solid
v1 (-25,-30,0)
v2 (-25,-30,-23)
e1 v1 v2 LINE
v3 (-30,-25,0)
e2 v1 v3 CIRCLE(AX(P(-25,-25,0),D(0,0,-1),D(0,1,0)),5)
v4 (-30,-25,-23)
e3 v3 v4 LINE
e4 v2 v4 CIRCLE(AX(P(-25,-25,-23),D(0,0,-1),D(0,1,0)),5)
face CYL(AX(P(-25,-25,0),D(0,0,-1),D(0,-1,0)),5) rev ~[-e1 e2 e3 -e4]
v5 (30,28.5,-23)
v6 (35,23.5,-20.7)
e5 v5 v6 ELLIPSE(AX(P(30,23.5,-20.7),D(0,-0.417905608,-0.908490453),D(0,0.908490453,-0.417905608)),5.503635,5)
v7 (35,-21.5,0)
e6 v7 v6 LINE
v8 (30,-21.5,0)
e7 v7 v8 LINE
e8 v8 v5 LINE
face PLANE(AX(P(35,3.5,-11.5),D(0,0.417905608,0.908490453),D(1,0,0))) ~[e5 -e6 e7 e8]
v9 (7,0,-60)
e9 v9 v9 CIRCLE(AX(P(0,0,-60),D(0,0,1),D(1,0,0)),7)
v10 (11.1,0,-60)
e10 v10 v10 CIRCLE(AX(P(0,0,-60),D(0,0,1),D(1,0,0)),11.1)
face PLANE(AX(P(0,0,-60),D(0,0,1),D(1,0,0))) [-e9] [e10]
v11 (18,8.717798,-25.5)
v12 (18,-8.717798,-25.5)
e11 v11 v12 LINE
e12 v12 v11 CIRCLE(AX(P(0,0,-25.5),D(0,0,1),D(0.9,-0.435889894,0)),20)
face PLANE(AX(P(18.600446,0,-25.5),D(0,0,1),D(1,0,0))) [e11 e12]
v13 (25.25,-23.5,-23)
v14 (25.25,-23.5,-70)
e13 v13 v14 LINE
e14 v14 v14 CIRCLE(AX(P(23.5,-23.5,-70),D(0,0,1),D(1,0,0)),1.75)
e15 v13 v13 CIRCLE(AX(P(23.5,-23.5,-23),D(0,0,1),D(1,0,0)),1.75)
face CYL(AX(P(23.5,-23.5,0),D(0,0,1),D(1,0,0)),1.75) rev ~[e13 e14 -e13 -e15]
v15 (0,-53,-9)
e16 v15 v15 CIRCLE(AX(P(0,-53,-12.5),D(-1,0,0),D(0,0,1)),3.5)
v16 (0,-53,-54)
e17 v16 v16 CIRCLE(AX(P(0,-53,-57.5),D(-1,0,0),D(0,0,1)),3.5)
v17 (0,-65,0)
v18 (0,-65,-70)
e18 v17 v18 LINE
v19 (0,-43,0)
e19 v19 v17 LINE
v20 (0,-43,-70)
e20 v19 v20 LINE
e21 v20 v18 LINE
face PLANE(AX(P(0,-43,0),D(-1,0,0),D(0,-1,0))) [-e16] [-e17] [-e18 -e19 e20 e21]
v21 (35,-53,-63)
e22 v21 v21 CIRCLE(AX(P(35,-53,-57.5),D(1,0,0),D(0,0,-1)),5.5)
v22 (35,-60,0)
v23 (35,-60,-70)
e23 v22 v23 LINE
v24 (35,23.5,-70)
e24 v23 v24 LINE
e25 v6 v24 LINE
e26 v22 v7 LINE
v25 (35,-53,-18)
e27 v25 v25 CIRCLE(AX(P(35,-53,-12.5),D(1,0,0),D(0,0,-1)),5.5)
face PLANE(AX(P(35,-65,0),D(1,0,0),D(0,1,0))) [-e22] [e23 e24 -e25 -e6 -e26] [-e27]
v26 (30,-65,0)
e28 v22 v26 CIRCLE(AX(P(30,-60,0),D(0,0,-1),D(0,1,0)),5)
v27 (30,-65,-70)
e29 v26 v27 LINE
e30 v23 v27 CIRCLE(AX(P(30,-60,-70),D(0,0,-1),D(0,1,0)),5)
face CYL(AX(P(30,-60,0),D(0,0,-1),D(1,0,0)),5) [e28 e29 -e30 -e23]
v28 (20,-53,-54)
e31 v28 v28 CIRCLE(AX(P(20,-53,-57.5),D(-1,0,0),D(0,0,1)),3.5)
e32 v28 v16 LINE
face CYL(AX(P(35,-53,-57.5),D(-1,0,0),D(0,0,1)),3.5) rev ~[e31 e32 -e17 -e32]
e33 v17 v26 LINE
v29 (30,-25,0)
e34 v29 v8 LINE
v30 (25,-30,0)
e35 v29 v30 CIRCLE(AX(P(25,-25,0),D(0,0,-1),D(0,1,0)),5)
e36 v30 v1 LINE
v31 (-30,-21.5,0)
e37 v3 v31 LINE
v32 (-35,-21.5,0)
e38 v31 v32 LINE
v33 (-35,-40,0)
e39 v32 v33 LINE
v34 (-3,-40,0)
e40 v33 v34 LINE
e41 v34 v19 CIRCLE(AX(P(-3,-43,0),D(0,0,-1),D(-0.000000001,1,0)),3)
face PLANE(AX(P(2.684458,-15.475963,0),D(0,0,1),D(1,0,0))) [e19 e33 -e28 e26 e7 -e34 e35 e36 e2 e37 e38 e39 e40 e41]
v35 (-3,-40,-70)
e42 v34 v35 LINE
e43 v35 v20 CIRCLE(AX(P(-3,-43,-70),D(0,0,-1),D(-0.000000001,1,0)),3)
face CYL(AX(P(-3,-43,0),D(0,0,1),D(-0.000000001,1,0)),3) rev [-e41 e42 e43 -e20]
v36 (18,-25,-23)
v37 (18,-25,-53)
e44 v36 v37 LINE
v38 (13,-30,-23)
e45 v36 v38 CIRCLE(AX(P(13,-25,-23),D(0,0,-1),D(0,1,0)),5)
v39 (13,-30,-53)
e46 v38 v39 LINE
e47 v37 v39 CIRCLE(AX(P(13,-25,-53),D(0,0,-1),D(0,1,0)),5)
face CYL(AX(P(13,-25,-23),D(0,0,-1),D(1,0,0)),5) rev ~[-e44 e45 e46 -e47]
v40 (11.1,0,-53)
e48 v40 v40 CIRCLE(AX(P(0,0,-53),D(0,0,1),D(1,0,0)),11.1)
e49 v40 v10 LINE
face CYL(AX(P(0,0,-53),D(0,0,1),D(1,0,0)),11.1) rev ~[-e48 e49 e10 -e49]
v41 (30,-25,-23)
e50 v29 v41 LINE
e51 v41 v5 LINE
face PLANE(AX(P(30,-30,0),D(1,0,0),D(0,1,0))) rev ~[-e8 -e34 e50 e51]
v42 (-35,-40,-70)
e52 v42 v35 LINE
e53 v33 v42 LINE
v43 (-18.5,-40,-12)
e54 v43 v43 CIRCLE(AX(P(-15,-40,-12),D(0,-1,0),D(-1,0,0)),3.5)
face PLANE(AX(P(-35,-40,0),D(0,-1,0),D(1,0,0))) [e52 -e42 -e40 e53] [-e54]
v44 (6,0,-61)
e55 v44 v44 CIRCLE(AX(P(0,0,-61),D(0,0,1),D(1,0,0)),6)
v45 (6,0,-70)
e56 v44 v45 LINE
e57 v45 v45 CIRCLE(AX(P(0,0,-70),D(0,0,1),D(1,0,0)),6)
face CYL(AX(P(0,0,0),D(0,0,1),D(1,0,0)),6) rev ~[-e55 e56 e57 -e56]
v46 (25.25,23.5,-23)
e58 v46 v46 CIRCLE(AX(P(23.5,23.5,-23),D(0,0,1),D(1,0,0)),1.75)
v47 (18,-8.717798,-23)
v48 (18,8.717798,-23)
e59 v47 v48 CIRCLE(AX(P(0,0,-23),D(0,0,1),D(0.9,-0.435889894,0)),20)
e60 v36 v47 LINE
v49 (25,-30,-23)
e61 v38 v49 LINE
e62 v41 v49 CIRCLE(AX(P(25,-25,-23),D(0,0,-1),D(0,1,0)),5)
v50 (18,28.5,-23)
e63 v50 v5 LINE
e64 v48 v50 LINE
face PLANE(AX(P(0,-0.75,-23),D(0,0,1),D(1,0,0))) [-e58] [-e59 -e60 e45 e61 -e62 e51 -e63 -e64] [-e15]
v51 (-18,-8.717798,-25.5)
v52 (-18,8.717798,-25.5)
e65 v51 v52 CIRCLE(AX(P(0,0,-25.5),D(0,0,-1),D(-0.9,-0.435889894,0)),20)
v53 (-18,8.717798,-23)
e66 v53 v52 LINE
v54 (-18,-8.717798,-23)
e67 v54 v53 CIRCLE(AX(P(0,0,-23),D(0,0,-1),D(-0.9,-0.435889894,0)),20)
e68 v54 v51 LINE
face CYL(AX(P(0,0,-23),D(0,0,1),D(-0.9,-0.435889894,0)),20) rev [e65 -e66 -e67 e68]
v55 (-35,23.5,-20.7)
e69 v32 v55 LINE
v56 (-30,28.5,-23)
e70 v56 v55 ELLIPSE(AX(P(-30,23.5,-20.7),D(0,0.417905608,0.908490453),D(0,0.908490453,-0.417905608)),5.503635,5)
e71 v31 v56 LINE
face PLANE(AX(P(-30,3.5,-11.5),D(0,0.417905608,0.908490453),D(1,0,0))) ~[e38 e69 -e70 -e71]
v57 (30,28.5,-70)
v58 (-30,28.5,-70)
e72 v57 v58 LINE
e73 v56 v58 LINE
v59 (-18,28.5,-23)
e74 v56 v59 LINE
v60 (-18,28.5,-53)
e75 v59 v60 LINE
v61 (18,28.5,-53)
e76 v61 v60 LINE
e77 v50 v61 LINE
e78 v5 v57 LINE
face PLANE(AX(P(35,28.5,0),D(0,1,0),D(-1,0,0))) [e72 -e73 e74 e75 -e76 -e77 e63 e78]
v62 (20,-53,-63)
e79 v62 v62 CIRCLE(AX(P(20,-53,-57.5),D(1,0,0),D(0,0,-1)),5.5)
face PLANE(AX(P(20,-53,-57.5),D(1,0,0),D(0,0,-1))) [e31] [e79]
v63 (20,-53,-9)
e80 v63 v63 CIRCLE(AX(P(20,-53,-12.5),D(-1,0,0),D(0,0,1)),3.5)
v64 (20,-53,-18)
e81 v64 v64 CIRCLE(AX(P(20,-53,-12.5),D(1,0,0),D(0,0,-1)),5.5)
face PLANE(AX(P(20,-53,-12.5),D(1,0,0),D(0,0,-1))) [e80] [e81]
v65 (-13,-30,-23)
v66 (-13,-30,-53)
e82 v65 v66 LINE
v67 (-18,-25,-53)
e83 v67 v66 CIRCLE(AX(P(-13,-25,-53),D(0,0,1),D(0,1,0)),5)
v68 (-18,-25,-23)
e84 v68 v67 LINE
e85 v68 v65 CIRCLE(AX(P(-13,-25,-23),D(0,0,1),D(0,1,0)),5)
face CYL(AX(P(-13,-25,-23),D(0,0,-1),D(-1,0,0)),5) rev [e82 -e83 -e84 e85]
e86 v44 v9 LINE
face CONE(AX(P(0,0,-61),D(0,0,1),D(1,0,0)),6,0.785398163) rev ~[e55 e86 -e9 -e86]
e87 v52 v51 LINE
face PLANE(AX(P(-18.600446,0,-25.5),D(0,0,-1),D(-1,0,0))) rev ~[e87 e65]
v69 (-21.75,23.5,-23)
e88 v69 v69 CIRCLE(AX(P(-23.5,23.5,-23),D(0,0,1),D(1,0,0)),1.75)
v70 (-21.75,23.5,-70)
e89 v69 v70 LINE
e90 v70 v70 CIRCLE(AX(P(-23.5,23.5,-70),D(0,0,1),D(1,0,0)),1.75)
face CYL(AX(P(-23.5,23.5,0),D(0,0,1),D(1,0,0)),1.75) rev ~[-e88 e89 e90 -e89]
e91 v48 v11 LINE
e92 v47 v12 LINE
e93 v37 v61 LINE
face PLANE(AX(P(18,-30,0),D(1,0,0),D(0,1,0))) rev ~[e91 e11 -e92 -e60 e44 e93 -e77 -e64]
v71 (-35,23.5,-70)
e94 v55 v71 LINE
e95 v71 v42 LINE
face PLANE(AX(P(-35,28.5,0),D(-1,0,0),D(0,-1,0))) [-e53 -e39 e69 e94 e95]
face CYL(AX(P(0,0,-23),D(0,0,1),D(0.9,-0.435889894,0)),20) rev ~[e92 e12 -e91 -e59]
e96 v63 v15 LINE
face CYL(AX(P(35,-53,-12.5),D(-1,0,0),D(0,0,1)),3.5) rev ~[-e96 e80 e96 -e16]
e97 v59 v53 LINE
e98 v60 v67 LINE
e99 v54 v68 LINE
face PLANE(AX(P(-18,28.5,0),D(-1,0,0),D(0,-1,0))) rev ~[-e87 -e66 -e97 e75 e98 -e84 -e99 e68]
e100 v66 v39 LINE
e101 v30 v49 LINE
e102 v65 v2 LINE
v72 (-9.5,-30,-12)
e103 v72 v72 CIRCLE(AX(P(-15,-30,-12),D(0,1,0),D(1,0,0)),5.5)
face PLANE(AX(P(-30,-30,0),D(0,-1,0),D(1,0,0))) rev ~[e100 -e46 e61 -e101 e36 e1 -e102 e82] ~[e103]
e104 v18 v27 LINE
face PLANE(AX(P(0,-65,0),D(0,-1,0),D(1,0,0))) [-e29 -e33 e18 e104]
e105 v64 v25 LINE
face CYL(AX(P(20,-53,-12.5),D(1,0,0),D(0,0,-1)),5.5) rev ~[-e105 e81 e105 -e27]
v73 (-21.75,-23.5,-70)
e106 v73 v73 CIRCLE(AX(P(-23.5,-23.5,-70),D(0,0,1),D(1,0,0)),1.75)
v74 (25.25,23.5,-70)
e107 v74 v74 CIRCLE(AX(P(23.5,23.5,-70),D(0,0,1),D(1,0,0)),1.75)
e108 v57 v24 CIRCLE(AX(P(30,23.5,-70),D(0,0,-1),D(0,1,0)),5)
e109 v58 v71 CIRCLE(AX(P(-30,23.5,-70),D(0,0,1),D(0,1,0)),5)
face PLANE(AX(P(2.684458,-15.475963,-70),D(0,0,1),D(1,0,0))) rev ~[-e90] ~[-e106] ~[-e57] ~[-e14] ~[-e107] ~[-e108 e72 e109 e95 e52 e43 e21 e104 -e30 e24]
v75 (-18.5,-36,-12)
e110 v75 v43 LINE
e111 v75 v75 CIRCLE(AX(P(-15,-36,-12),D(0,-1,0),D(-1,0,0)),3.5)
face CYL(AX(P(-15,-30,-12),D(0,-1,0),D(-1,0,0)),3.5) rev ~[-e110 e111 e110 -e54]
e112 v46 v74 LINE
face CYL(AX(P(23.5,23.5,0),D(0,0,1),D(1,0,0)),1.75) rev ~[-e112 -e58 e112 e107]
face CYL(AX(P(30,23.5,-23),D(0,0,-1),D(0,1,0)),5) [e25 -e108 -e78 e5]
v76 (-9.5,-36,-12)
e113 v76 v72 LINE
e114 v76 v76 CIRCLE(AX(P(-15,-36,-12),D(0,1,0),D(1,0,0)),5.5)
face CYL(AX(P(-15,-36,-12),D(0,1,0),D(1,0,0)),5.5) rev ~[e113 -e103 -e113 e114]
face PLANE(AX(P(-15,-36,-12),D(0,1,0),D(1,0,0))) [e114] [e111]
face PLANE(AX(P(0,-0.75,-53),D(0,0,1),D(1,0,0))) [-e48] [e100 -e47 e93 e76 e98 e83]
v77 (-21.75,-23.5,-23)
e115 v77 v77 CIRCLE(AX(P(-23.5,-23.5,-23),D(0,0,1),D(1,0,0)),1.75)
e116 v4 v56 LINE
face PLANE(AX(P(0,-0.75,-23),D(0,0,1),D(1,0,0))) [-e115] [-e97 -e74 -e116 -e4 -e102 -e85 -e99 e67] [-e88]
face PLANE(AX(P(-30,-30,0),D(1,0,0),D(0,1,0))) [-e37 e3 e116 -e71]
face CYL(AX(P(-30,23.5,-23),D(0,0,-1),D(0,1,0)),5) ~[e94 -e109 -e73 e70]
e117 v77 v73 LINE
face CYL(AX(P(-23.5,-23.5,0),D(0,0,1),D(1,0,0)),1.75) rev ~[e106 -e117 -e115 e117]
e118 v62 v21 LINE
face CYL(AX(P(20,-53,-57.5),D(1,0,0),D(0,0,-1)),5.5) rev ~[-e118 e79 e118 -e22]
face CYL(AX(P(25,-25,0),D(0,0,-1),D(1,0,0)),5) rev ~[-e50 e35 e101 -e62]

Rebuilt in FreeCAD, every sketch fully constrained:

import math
import FreeCAD as App
import Part
import Sketcher
Q = App.Units.Quantity


def edges_at(feature, points):
    """Names of the edges that pass closest to the given points."""
    edges = feature.Shape.Edges
    near = lambda p: min(range(len(edges)), key=lambda i: edges[i].distToShape(Part.Vertex(*p))[0])
    return sorted({f"Edge{near(p) + 1}" for p in points})


def add_polygon(sketch, points):
    """Adds a closed chain of lines whose ends are joined by coincident constraints."""
    first, n = sketch.GeometryCount, len(points)
    for a, b in zip(points, points[1:] + points[:1]):
        sketch.addGeometry(Part.LineSegment(App.Vector(*a, 0), App.Vector(*b, 0)), False)
    for i in range(n):
        sketch.addConstraint(Sketcher.Constraint("Coincident", first + i, 2, first + (i + 1) % n, 1))

doc = App.newDocument("Part")
body = doc.addObject("PartDesign::Body", "Body")

# Sketch on XY plane
sketch1 = body.newObject("Sketcher::SketchObject", "Sketch")
sketch1.AttachmentSupport = (doc.getObject("XY_Plane"), [""])
sketch1.MapMode = "FlatFace"
sketch1.addGeometry(Part.LineSegment(App.Vector(35, 28.5, 0), App.Vector(-35, 28.5, 0)), False)
sketch1.addGeometry(Part.LineSegment(App.Vector(-35, 28.5, 0), App.Vector(-35, -40, 0)), False)
sketch1.addGeometry(Part.LineSegment(App.Vector(-35, -40, 0), App.Vector(-3, -40, 0)), False)
sketch1.addGeometry(Part.ArcOfCircle(Part.Circle(App.Vector(-3, -43, 0), App.Vector(0, 0, 1), 3), math.radians(0), math.radians(90)), False)
sketch1.addGeometry(Part.LineSegment(App.Vector(0, -43, 0), App.Vector(0, -65, 0)), False)
sketch1.addGeometry(Part.LineSegment(App.Vector(0, -65, 0), App.Vector(35, -65, 0)), False)
sketch1.addGeometry(Part.LineSegment(App.Vector(35, -65, 0), App.Vector(35, 28.5, 0)), False)
sketch1.addGeometry(Part.Circle(App.Vector(-23.5, -23.5, 0), App.Vector(0, 0, 1), 1.8), False)
sketch1.addGeometry(Part.Circle(App.Vector(23.5, -23.5, 0), App.Vector(0, 0, 1), 1.8), False)
sketch1.addGeometry(Part.Circle(App.Vector(-23.5, 23.5, 0), App.Vector(0, 0, 1), 1.8), False)
sketch1.addGeometry(Part.Circle(App.Vector(0, 0, 0), App.Vector(0, 0, 1), 6), False)
sketch1.addGeometry(Part.Circle(App.Vector(23.5, 23.5, 0), App.Vector(0, 0, 1), 1.8), False)
sketch1.addConstraint(Sketcher.Constraint("Coincident", 0, 2, 1, 1))
sketch1.addConstraint(Sketcher.Constraint("Coincident", 1, 2, 2, 1))
sketch1.addConstraint(Sketcher.Constraint("Tangent", 2, 2, 3, 2))
sketch1.addConstraint(Sketcher.Constraint("Tangent", 3, 1, 4, 1))
sketch1.addConstraint(Sketcher.Constraint("Coincident", 4, 2, 5, 1))
sketch1.addConstraint(Sketcher.Constraint("Coincident", 5, 2, 6, 1))
sketch1.addConstraint(Sketcher.Constraint("Coincident", 6, 2, 0, 1))
sketch1.addConstraint(Sketcher.Constraint("Horizontal", 0))
sketch1.addConstraint(Sketcher.Constraint("Vertical", 1))
sketch1.addConstraint(Sketcher.Constraint("Horizontal", 2))
sketch1.addConstraint(Sketcher.Constraint("Vertical", 4))
sketch1.addConstraint(Sketcher.Constraint("Horizontal", 5))
sketch1.addConstraint(Sketcher.Constraint("Vertical", 6))
sketch1.addConstraint(Sketcher.Constraint("Coincident", 10, 3, -1, 1))
sketch1.addConstraint(Sketcher.Constraint("Equal", 7, 8))
sketch1.addConstraint(Sketcher.Constraint("Equal", 8, 9))
sketch1.addConstraint(Sketcher.Constraint("Equal", 9, 11))
sketch1.addConstraint(Sketcher.Constraint("Symmetric", 8, 3, 9, 3, -1, 1))
sketch1.addConstraint(Sketcher.Constraint("Symmetric", 7, 3, 11, 3, -1, 1))
sketch1.addConstraint(Sketcher.Constraint("Symmetric", 7, 3, 8, 3, -2))
sketch1.addConstraint(Sketcher.Constraint("PointOnObject", 3, 1, -2))
sketch1.addConstraint(Sketcher.Constraint("Diameter", 10, Q("12 mm")))
sketch1.addConstraint(Sketcher.Constraint("Radius", 3, Q("3 mm")))
sketch1.addConstraint(Sketcher.Constraint("Diameter", 7, Q("3.5 mm")))
sketch1.addConstraint(Sketcher.Constraint("DistanceX", 0, 2, 0, 1, Q("70 mm")))
sketch1.addConstraint(Sketcher.Constraint("DistanceX", 2, 1, 2, 2, Q("32 mm")))
sketch1.addConstraint(Sketcher.Constraint("DistanceY", 4, 2, 4, 1, Q("22 mm")))
sketch1.addConstraint(Sketcher.Constraint("DistanceY", 1, 2, 1, 1, Q("68.5 mm")))
sketch1.addConstraint(Sketcher.Constraint("DistanceY", 3, 3, -1, 1, Q("43 mm")))
sketch1.addConstraint(Sketcher.Constraint("DistanceX", 7, 3, 8, 3, Q("47 mm")))
sketch1.addConstraint(Sketcher.Constraint("DistanceY", 7, 3, 9, 3, Q("47 mm")))
pad1 = body.newObject("PartDesign::Pad", "Pad")
pad1.Profile = sketch1
pad1.Length = 70
pad1.Reversed = True

# Sketch on XY plane
sketch2 = body.newObject("Sketcher::SketchObject", "Sketch001")
sketch2.AttachmentSupport = (doc.getObject("XY_Plane"), [""])
sketch2.MapMode = "FlatFace"
add_polygon(sketch2, [(-30, 28), (-30, -30), (30, -30), (30, 28)])  # lines 0-3
sketch2.addConstraint(Sketcher.Constraint("Vertical", 0))
sketch2.addConstraint(Sketcher.Constraint("Horizontal", 1))
sketch2.addConstraint(Sketcher.Constraint("Vertical", 2))
sketch2.addConstraint(Sketcher.Constraint("Horizontal", 3))
sketch2.addConstraint(Sketcher.Constraint("DistanceX", 1, 1, 1, 2, Q("60 mm")))
sketch2.addConstraint(Sketcher.Constraint("DistanceY", 0, 2, 0, 1, Q("58.5 mm")))
sketch2.addConstraint(Sketcher.Constraint("DistanceX", 0, 2, -1, 1, Q("30 mm")))
sketch2.addConstraint(Sketcher.Constraint("DistanceY", 0, 2, -1, 1, Q("30 mm")))
pocket1 = body.newObject("PartDesign::Pocket", "Pocket")
pocket1.Profile = sketch2
pocket1.Length = 23

# Sketch on XY plane
sketch3 = body.newObject("Sketcher::SketchObject", "Sketch002")
sketch3.AttachmentSupport = (doc.getObject("XY_Plane"), [""])
sketch3.MapMode = "FlatFace"
add_polygon(sketch3, [(-18, -30), (18, -30), (18, 28), (-18, 28)])  # lines 0-3
sketch3.addConstraint(Sketcher.Constraint("Horizontal", 0))
sketch3.addConstraint(Sketcher.Constraint("Vertical", 1))
sketch3.addConstraint(Sketcher.Constraint("Horizontal", 2))
sketch3.addConstraint(Sketcher.Constraint("Vertical", 3))
sketch3.addConstraint(Sketcher.Constraint("DistanceX", 0, 1, 0, 2, Q("36 mm")))
sketch3.addConstraint(Sketcher.Constraint("DistanceY", 1, 1, 1, 2, Q("58.5 mm")))
sketch3.addConstraint(Sketcher.Constraint("DistanceX", -1, 1, 0, 2, Q("18 mm")))
sketch3.addConstraint(Sketcher.Constraint("DistanceY", 0, 2, -1, 1, Q("30 mm")))
pocket2 = body.newObject("PartDesign::Pocket", "Pocket001")
pocket2.Profile = sketch3
pocket2.Length = 53

# Sketch on XY plane
sketch4 = body.newObject("Sketcher::SketchObject", "Sketch003")
sketch4.AttachmentSupport = (doc.getObject("XY_Plane"), [""])
sketch4.MapMode = "FlatFace"
sketch4.AttachmentOffset = App.Placement(App.Vector(0, 0, -23), App.Rotation())
sketch4.addGeometry(Part.LineSegment(App.Vector(-18, -9, 0), App.Vector(-18, 9, 0)), False)
sketch4.addGeometry(Part.ArcOfCircle(Part.Circle(App.Vector(0, 0, 0), App.Vector(0, 0, 1), 20), math.radians(154), math.radians(206)), False)
sketch4.addGeometry(Part.LineSegment(App.Vector(18, 9, 0), App.Vector(18, -9, 0)), False)
sketch4.addGeometry(Part.ArcOfCircle(Part.Circle(App.Vector(0, 0, 0), App.Vector(0, 0, 1), 20), math.radians(-26), math.radians(26)), False)
sketch4.addConstraint(Sketcher.Constraint("Coincident", 0, 1, 1, 2))
sketch4.addConstraint(Sketcher.Constraint("Coincident", 1, 1, 0, 2))
sketch4.addConstraint(Sketcher.Constraint("Coincident", 2, 1, 3, 2))
sketch4.addConstraint(Sketcher.Constraint("Coincident", 3, 1, 2, 2))
sketch4.addConstraint(Sketcher.Constraint("Vertical", 0))
sketch4.addConstraint(Sketcher.Constraint("Vertical", 2))
sketch4.addConstraint(Sketcher.Constraint("Coincident", 1, 3, -1, 1))
sketch4.addConstraint(Sketcher.Constraint("Coincident", 3, 3, -1, 1))
sketch4.addConstraint(Sketcher.Constraint("Equal", 1, 3))
sketch4.addConstraint(Sketcher.Constraint("Horizontal", 1, 1, 2, 1))
sketch4.addConstraint(Sketcher.Constraint("Radius", 1, Q("20 mm")))
sketch4.addConstraint(Sketcher.Constraint("DistanceX", 0, 1, -1, 1, Q("18 mm")))
pocket3 = body.newObject("PartDesign::Pocket", "Pocket002")
pocket3.Profile = sketch4
pocket3.Length = 2.5

# Sketch on XY plane
sketch5 = body.newObject("Sketcher::SketchObject", "Sketch004")
sketch5.AttachmentSupport = (doc.getObject("XY_Plane"), [""])
sketch5.MapMode = "FlatFace"
sketch5.AttachmentOffset = App.Placement(App.Vector(0, 0, -53), App.Rotation())
sketch5.addGeometry(Part.Circle(App.Vector(0, 0, 0), App.Vector(0, 0, 1), 11), False)
sketch5.addConstraint(Sketcher.Constraint("Coincident", 0, 3, -1, 1))
sketch5.addConstraint(Sketcher.Constraint("Diameter", 0, Q("22.2 mm")))
pocket4 = body.newObject("PartDesign::Pocket", "Pocket003")
pocket4.Profile = sketch5
pocket4.Length = 7
doc.recompute()

chamfer = body.newObject("PartDesign::Chamfer", "Chamfer")
chamfer.Base = (pocket4, edges_at(pocket4, [(32.5, 28.5, 0), (-32.5, 28.5, 0)]))
chamfer.ChamferType = "Two distances"
chamfer.Size = 50
chamfer.Size2 = 23
chamfer.FlipDirection = True
doc.recompute()

fillet = body.newObject("PartDesign::Fillet", "Fillet")
fillet.Base = (chamfer, edges_at(chamfer, [(35, -65, -35), (35, 28.5, -46.5), (-35, 28.5, -46.5)]))
fillet.Radius = 5
doc.recompute()

fillet2 = body.newObject("PartDesign::Fillet", "Fillet001")
fillet2.Base = (fillet, edges_at(fillet, [
    (30, -30, -11.5),
    (-30, -30, -11.5),
    (18, -30, -38),
    (-18, -30, -38),
]))
fillet2.Radius = 5

# Sketch on XZ plane
sketch6 = body.newObject("Sketcher::SketchObject", "Sketch005")
sketch6.AttachmentSupport = (doc.getObject("XZ_Plane"), [""])
sketch6.MapMode = "FlatFace"
sketch6.AttachmentOffset = App.Placement(App.Vector(0, 0, 30), App.Rotation())
sketch6.addGeometry(Part.Circle(App.Vector(-15, -12, 0), App.Vector(0, 0, 1), 3.5), False)
sketch6.addConstraint(Sketcher.Constraint("Diameter", 0, Q("7 mm")))
sketch6.addConstraint(Sketcher.Constraint("DistanceX", 0, 3, -1, 1, Q("15 mm")))
sketch6.addConstraint(Sketcher.Constraint("DistanceY", 0, 3, -1, 1, Q("12 mm")))
doc.recompute()
hole = body.newObject("PartDesign::Hole", "Hole")
hole.Profile = sketch6
hole.ThreadType = "None"
hole.Diameter = 7
hole.DepthType = "ThroughAll"
hole.HoleCutType = "Counterbore"
hole.HoleCutDiameter = 11
hole.HoleCutDepth = 6
hole.Reversed = True

# Sketch on YZ plane
sketch7 = body.newObject("Sketcher::SketchObject", "Sketch006")
sketch7.AttachmentSupport = (doc.getObject("YZ_Plane"), [""])
sketch7.MapMode = "FlatFace"
sketch7.AttachmentOffset = App.Placement(App.Vector(0, 0, 35), App.Rotation())
sketch7.addGeometry(Part.Circle(App.Vector(-53, -12.5, 0), App.Vector(0, 0, 1), 3.5), False)
sketch7.addGeometry(Part.Circle(App.Vector(-53, -57.5, 0), App.Vector(0, 0, 1), 3.5), False)
sketch7.addConstraint(Sketcher.Constraint("Equal", 0, 1))
sketch7.addConstraint(Sketcher.Constraint("Vertical", 0, 3, 1, 3))
sketch7.addConstraint(Sketcher.Constraint("Diameter", 0, Q("7 mm")))
sketch7.addConstraint(Sketcher.Constraint("DistanceX", 0, 3, -1, 1, Q("53 mm")))
sketch7.addConstraint(Sketcher.Constraint("DistanceY", 1, 3, 0, 3, Q("45 mm")))
sketch7.addConstraint(Sketcher.Constraint("DistanceY", 0, 3, -1, 1, Q("12.5 mm")))
doc.recompute()
hole2 = body.newObject("PartDesign::Hole", "Hole001")
hole2.Profile = sketch7
hole2.ThreadType = "None"
hole2.Diameter = 7
hole2.DepthType = "ThroughAll"
hole2.HoleCutType = "Counterbore"
hole2.HoleCutDiameter = 11
hole2.HoleCutDepth = 15
doc.recompute()

chamfer2 = body.newObject("PartDesign::Chamfer", "Chamfer001")
chamfer2.Base = (hole2, edges_at(hole2, [(-6, 0, -60)]))
chamfer2.Size = 1

doc.recompute()
